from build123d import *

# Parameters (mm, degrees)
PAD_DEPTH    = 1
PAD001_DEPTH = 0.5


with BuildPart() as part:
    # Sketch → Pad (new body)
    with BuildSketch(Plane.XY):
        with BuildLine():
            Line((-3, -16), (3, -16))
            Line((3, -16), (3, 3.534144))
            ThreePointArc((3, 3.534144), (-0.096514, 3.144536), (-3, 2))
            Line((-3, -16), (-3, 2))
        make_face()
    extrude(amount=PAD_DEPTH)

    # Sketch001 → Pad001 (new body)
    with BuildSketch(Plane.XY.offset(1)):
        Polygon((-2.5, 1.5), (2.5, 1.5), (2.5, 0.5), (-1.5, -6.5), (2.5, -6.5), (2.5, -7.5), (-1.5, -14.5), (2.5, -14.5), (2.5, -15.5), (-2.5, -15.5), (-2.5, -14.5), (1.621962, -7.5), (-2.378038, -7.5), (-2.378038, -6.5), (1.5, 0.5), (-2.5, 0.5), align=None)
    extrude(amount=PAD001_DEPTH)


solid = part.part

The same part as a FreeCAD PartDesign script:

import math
import FreeCAD as App
import Part
import Sketcher

doc = App.newDocument("Part")
params = doc.addObject("Spreadsheet::Sheet", "Params")
for row, (alias, value) in enumerate([
    ("sketch1_width", "6 mm"),
    ("sketch1_height", "18 mm"),
    ("pad1_length", "1 mm"),
    ("sketch2_width", "5 mm"),
    ("sketch2_width2", "4 mm"),
    ("sketch2_height", "1 mm"),
    ("pad2_length", "0.5 mm"),
], start=1):
    params.set(f"A{row}", alias)
    params.set(f"B{row}", "=" + value)
    params.setAlias(f"B{row}", alias)

body = doc.addObject("PartDesign::Body", "Body")

# Sketch on XY plane
sketch1 = body.newObject("Sketcher::SketchObject", "Sketch")
sketch1.AttachmentSupport = (doc.getObject("XY_Plane"), [""])
sketch1.MapMode = "FlatFace"
sketch1.addGeometry([
    Part.LineSegment(App.Vector(-3, -16, 0), App.Vector(3, -16, 0)),
    Part.LineSegment(App.Vector(3, -16, 0), App.Vector(3, 3.534144, 0)),
    Part.ArcOfCircle(Part.Circle(App.Vector(3.000002, -8.965863, 0), App.Vector(0, 0, 1), 12.500007), math.radians(90.000009), math.radians(118.685395)),
    Part.LineSegment(App.Vector(-3, 2, 0), App.Vector(-3, -16, 0)),
], False)
sketch1.addConstraint([
    Sketcher.Constraint("Coincident", 0, 2, 1, 1),
    Sketcher.Constraint("Coincident", 1, 2, 2, 1),
    Sketcher.Constraint("Coincident", 2, 2, 3, 1),
    Sketcher.Constraint("Coincident", 3, 2, 0, 1),
    Sketcher.Constraint("Horizontal", 0),
    Sketcher.Constraint("Vertical", 1),
    Sketcher.Constraint("Vertical", 3),
    Sketcher.Constraint("Vertical", 2, 3, 0, 2),
    Sketcher.Constraint("DistanceX", 0, 1, 0, 2, 6.0),
    Sketcher.Constraint("DistanceY", 3, 2, 3, 1, 18.0),
    Sketcher.Constraint("DistanceX", -1, 1, 2, 3, 3.000002),
    Sketcher.Constraint("DistanceY", 0, 2, -1, 1, 16.0),
    Sketcher.Constraint("Radius", 2, 12.500007),
])
sketch1.setExpression("Constraints[8]", "Params.sketch1_width")
sketch1.setExpression("Constraints[9]", "Params.sketch1_height")
pad1 = body.newObject("PartDesign::Pad", "Pad")
pad1.Profile = sketch1
pad1.setExpression("Length", "Params.pad1_length")

# Sketch on XY plane
sketch2 = body.newObject("Sketcher::SketchObject", "Sketch001")
sketch2.AttachmentSupport = (doc.getObject("XY_Plane"), [""])
sketch2.MapMode = "FlatFace"
sketch2.AttachmentOffset = App.Placement(App.Vector(0, 0, 1), App.Rotation())
sketch2.addGeometry([
    Part.LineSegment(App.Vector(2.5, 1.5, 0), App.Vector(-2.5, 1.5, 0)),  # 0
    Part.LineSegment(App.Vector(-2.5, 1.5, 0), App.Vector(-2.5, 0.5, 0)),  # 1
    Part.LineSegment(App.Vector(-2.5, 0.5, 0), App.Vector(1.5, 0.5, 0)),  # 2
    Part.LineSegment(App.Vector(1.5, 0.5, 0), App.Vector(-2.378038, -6.5, 0)),  # 3
    Part.LineSegment(App.Vector(-2.378038, -6.5, 0), App.Vector(-2.378038, -7.5, 0)),  # 4
    Part.LineSegment(App.Vector(-2.378038, -7.5, 0), App.Vector(1.621962, -7.5, 0)),  # 5
    Part.LineSegment(App.Vector(1.621962, -7.5, 0), App.Vector(-2.5, -14.5, 0)),  # 6
    Part.LineSegment(App.Vector(-2.5, -14.5, 0), App.Vector(-2.5, -15.5, 0)),  # 7
    Part.LineSegment(App.Vector(-2.5, -15.5, 0), App.Vector(2.5, -15.5, 0)),  # 8
    Part.LineSegment(App.Vector(2.5, -15.5, 0), App.Vector(2.5, -14.5, 0)),  # 9
    Part.LineSegment(App.Vector(2.5, -14.5, 0), App.Vector(-1.5, -14.5, 0)),  # 10
    Part.LineSegment(App.Vector(-1.5, -14.5, 0), App.Vector(2.5, -7.5, 0)),  # 11
    Part.LineSegment(App.Vector(2.5, -7.5, 0), App.Vector(2.5, -6.5, 0)),  # 12
    Part.LineSegment(App.Vector(2.5, -6.5, 0), App.Vector(-1.5, -6.5, 0)),  # 13
    Part.LineSegment(App.Vector(-1.5, -6.5, 0), App.Vector(2.5, 0.5, 0)),  # 14
    Part.LineSegment(App.Vector(2.5, 0.5, 0), App.Vector(2.5, 1.5, 0)),  # 15
], False)
sketch2.addConstraint([
    Sketcher.Constraint("Coincident", 0, 2, 1, 1),
    Sketcher.Constraint("Coincident", 1, 2, 2, 1),
    Sketcher.Constraint("Coincident", 2, 2, 3, 1),
    Sketcher.Constraint("Coincident", 3, 2, 4, 1),
    Sketcher.Constraint("Coincident", 4, 2, 5, 1),
    Sketcher.Constraint("Coincident", 5, 2, 6, 1),
    Sketcher.Constraint("Coincident", 6, 2, 7, 1),
    Sketcher.Constraint("Coincident", 7, 2, 8, 1),
    Sketcher.Constraint("Coincident", 8, 2, 9, 1),
    Sketcher.Constraint("Coincident", 9, 2, 10, 1),
    Sketcher.Constraint("Coincident", 10, 2, 11, 1),
    Sketcher.Constraint("Coincident", 11, 2, 12, 1),
    Sketcher.Constraint("Coincident", 12, 2, 13, 1),
    Sketcher.Constraint("Coincident", 13, 2, 14, 1),
    Sketcher.Constraint("Coincident", 14, 2, 15, 1),
    Sketcher.Constraint("Coincident", 15, 2, 0, 1),
    Sketcher.Constraint("Horizontal", 0),
    Sketcher.Constraint("Vertical", 1),
    Sketcher.Constraint("Horizontal", 2),
    Sketcher.Constraint("Vertical", 4),
    Sketcher.Constraint("Horizontal", 5),
    Sketcher.Constraint("Vertical", 7),
    Sketcher.Constraint("Horizontal", 8),
    Sketcher.Constraint("Vertical", 9),
    Sketcher.Constraint("Horizontal", 10),
    Sketcher.Constraint("Vertical", 12),
    Sketcher.Constraint("Horizontal", 13),
    Sketcher.Constraint("Vertical", 15),
    Sketcher.Constraint("Symmetric", 6, 2, 9, 2, -2),
    Sketcher.Constraint("Symmetric", 1, 2, 14, 2, -2),
    Sketcher.Constraint("Parallel", 11, 14),
    Sketcher.Constraint("Horizontal", 5, 2, 11, 2),
    Sketcher.Constraint("Horizontal", 3, 2, 12, 2),
    Sketcher.Constraint("Vertical", 1, 2, 6, 2),
    Sketcher.Constraint("Vertical", 9, 2, 11, 2),
    Sketcher.Constraint("Vertical", 10, 2, 13, 2),
    Sketcher.Constraint("Equal", 2, 5),
    Sketcher.Constraint("Equal", 5, 10),
    Sketcher.Constraint("Equal", 1, 4),
    Sketcher.Constraint("Equal", 4, 7),
    Sketcher.Constraint("DistanceX", 0, 2, 0, 1, 5.0),
    Sketcher.Constraint("DistanceX", 2, 1, 2, 2, 4.0),
    Sketcher.Constraint("DistanceY", 1, 2, 1, 1, 1.0),
    Sketcher.Constraint("DistanceY", 3, 2, 1, 2, 7.0),
    Sketcher.Constraint("DistanceY", -1, 1, 0, 2, 1.5),
    Sketcher.Constraint("Distance", 3, 8.002448),
])
sketch2.setExpression("Constraints[40]", "Params.sketch2_width")
sketch2.setExpression("Constraints[41]", "Params.sketch2_width2")
sketch2.setExpression("Constraints[42]", "Params.sketch2_height")
pad2 = body.newObject("PartDesign::Pad", "Pad001")
pad2.Profile = sketch2
pad2.setExpression("Length", "Params.pad2_length")

doc.recompute()
